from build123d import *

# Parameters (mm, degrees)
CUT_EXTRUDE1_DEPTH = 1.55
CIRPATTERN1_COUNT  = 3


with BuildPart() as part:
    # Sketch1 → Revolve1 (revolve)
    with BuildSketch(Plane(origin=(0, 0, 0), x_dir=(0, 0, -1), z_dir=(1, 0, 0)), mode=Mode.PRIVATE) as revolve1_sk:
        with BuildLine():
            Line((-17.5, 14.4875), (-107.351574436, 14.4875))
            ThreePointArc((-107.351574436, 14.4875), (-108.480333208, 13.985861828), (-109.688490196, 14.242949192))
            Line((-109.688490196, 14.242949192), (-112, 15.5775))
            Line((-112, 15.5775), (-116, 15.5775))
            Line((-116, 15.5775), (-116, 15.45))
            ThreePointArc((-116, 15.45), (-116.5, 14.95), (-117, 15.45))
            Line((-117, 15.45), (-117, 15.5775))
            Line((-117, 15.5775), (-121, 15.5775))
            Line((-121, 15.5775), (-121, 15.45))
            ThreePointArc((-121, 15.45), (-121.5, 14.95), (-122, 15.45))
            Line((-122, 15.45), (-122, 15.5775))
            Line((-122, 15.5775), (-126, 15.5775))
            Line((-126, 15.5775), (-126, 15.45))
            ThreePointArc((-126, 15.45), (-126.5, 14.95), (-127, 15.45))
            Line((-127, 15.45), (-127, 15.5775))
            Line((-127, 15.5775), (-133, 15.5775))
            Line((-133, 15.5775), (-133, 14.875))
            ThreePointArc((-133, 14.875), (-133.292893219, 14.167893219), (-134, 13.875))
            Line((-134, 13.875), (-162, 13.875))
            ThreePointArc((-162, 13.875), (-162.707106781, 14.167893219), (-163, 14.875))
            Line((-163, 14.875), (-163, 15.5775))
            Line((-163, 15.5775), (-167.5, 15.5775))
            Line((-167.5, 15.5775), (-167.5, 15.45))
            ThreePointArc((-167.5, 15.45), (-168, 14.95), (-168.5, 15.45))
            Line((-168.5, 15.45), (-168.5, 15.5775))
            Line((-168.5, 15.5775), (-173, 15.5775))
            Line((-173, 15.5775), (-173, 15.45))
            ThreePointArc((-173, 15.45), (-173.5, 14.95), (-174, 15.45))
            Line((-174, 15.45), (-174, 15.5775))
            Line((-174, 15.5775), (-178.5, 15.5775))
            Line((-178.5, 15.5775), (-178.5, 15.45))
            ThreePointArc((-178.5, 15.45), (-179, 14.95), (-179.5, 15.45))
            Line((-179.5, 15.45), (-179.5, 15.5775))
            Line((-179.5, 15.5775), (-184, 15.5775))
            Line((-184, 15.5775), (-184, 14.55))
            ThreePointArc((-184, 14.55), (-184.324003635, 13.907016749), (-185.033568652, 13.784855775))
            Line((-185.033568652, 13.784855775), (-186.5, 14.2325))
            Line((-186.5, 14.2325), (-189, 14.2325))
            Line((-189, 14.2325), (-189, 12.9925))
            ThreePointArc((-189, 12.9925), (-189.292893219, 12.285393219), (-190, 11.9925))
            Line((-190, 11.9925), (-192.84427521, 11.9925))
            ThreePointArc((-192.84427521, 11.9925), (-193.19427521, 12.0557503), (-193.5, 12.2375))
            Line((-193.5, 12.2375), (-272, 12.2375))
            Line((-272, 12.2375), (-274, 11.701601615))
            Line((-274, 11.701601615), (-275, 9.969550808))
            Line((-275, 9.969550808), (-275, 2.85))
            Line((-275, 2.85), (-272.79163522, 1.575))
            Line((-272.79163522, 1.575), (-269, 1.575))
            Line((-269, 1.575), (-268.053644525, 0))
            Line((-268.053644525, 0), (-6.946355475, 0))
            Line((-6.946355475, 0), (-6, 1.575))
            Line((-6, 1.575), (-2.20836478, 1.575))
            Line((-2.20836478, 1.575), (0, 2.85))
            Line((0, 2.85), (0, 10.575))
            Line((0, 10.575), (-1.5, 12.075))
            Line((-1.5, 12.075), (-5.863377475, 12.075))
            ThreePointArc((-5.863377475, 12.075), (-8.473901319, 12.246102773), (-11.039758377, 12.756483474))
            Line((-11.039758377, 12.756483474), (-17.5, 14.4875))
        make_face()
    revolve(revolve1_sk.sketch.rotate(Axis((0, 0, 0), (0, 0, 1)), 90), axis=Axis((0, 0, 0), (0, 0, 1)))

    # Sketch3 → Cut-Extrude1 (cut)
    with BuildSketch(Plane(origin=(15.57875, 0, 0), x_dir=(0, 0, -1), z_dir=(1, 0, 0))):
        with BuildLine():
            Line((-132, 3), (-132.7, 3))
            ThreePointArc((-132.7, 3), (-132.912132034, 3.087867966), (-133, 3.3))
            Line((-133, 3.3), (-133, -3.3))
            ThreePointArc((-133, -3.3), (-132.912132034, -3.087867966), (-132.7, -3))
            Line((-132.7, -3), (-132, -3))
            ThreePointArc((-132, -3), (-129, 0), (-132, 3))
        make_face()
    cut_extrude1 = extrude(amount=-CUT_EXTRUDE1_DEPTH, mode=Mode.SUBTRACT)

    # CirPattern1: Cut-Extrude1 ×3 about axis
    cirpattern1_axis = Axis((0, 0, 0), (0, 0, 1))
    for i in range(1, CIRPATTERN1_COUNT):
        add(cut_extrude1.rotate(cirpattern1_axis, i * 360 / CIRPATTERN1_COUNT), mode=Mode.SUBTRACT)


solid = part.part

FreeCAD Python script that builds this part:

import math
import FreeCAD as App
import Part
import Sketcher

V = App.Vector
Q = App.Units.Quantity

doc = App.newDocument("Part")
body = doc.addObject("PartDesign::Body", "Body")

# Sketch on YZ plane
sketch1 = body.newObject("Sketcher::SketchObject", "Sketch")
sketch1.AttachmentSupport = (doc.getObject("YZ_Plane"), [""])
sketch1.MapMode = "FlatFace"
sketch1.addGeometry(Part.LineSegment(V(14.49, 17.5, 0), V(14.49, 107.35, 0)), False)
sketch1.addGeometry(Part.ArcOfCircle(Part.Circle(V(15.98, 108.69, 0), V(0, 0, 1), 2), math.radians(150), math.radians(222)), False)
sketch1.addGeometry(Part.LineSegment(V(14.24, 109.69, 0), V(15.58, 112, 0)), False)
sketch1.addGeometry(Part.LineSegment(V(15.58, 112, 0), V(15.58, 116, 0)), False)
sketch1.addGeometry(Part.LineSegment(V(15.58, 116, 0), V(15.45, 116, 0)), False)
sketch1.addGeometry(Part.ArcOfCircle(Part.Circle(V(15.45, 116.5, 0), V(0, 0, 1), 0.5), math.radians(90), math.radians(270)), False)
sketch1.addGeometry(Part.LineSegment(V(15.45, 117, 0), V(15.58, 117, 0)), False)
sketch1.addGeometry(Part.LineSegment(V(15.58, 117, 0), V(15.58, 121, 0)), False)
sketch1.addGeometry(Part.LineSegment(V(15.58, 121, 0), V(15.45, 121, 0)), False)
sketch1.addGeometry(Part.ArcOfCircle(Part.Circle(V(15.45, 121.5, 0), V(0, 0, 1), 0.5), math.radians(90), math.radians(270)), False)
sketch1.addGeometry(Part.LineSegment(V(15.45, 122, 0), V(15.58, 122, 0)), False)
sketch1.addGeometry(Part.LineSegment(V(15.58, 122, 0), V(15.58, 126, 0)), False)
sketch1.addGeometry(Part.LineSegment(V(15.58, 126, 0), V(15.45, 126, 0)), False)
sketch1.addGeometry(Part.ArcOfCircle(Part.Circle(V(15.45, 126.5, 0), V(0, 0, 1), 0.5), math.radians(90), math.radians(270)), False)
sketch1.addGeometry(Part.LineSegment(V(15.45, 127, 0), V(15.58, 127, 0)), False)
sketch1.addGeometry(Part.LineSegment(V(15.58, 127, 0), V(15.58, 133, 0)), False)
sketch1.addGeometry(Part.LineSegment(V(15.58, 133, 0), V(14.88, 133, 0)), False)
sketch1.addGeometry(Part.ArcOfCircle(Part.Circle(V(14.88, 134, 0), V(0, 0, 1), 1), math.radians(-180), math.radians(-90)), False)
sketch1.addGeometry(Part.LineSegment(V(13.88, 134, 0), V(13.88, 162, 0)), False)
sketch1.addGeometry(Part.ArcOfCircle(Part.Circle(V(14.88, 162, 0), V(0, 0, 1), 1), math.radians(90), math.radians(180)), False)
sketch1.addGeometry(Part.LineSegment(V(14.88, 163, 0), V(15.58, 163, 0)), False)
sketch1.addGeometry(Part.LineSegment(V(15.58, 163, 0), V(15.58, 167.5, 0)), False)
sketch1.addGeometry(Part.LineSegment(V(15.58, 167.5, 0), V(15.45, 167.5, 0)), False)
sketch1.addGeometry(Part.ArcOfCircle(Part.Circle(V(15.45, 168, 0), V(0, 0, 1), 0.5), math.radians(90), math.radians(270)), False)
sketch1.addGeometry(Part.LineSegment(V(15.45, 168.5, 0), V(15.58, 168.5, 0)), False)
sketch1.addGeometry(Part.LineSegment(V(15.58, 168.5, 0), V(15.58, 173, 0)), False)
sketch1.addGeometry(Part.LineSegment(V(15.58, 173, 0), V(15.45, 173, 0)), False)
sketch1.addGeometry(Part.ArcOfCircle(Part.Circle(V(15.45, 173.5, 0), V(0, 0, 1), 0.5), math.radians(90), math.radians(270)), False)
sketch1.addGeometry(Part.LineSegment(V(15.45, 174, 0), V(15.58, 174, 0)), False)
sketch1.addGeometry(Part.LineSegment(V(15.58, 174, 0), V(15.58, 178.5, 0)), False)
sketch1.addGeometry(Part.LineSegment(V(15.58, 178.5, 0), V(15.45, 178.5, 0)), False)
sketch1.addGeometry(Part.ArcOfCircle(Part.Circle(V(15.45, 179, 0), V(0, 0, 1), 0.5), math.radians(90), math.radians(270)), False)
sketch1.addGeometry(Part.LineSegment(V(15.45, 179.5, 0), V(15.58, 179.5, 0)), False)
sketch1.addGeometry(Part.LineSegment(V(15.58, 179.5, 0), V(15.58, 184, 0)), False)
sketch1.addGeometry(Part.LineSegment(V(15.58, 184, 0), V(14.55, 184, 0)), False)
sketch1.addGeometry(Part.ArcOfCircle(Part.Circle(V(14.55, 184.8, 0), V(0, 0, 1), 0.8), math.radians(163), math.radians(270)), False)
sketch1.addGeometry(Part.LineSegment(V(13.78, 185.03, 0), V(14.23, 186.5, 0)), False)
sketch1.addGeometry(Part.LineSegment(V(14.23, 186.5, 0), V(14.23, 189, 0)), False)
sketch1.addGeometry(Part.LineSegment(V(14.23, 189, 0), V(12.99, 189, 0)), False)
sketch1.addGeometry(Part.ArcOfCircle(Part.Circle(V(12.99, 190, 0), V(0, 0, 1), 1), math.radians(-180), math.radians(-90)), False)
sketch1.addGeometry(Part.LineSegment(V(11.99, 190, 0), V(11.99, 192.84, 0)), False)
sketch1.addGeometry(Part.ArcOfCircle(Part.Circle(V(12.99, 192.84, 0), V(0, 0, 1), 1), math.radians(139), math.radians(180)), False)
sketch1.addGeometry(Part.LineSegment(V(12.24, 193.5, 0), V(12.24, 272, 0)), False)
sketch1.addGeometry(Part.LineSegment(V(12.24, 272, 0), V(11.7, 274, 0)), False)
sketch1.addGeometry(Part.LineSegment(V(11.7, 274, 0), V(9.97, 275, 0)), False)
sketch1.addGeometry(Part.LineSegment(V(9.97, 275, 0), V(2.85, 275, 0)), False)
sketch1.addGeometry(Part.LineSegment(V(2.85, 275, 0), V(1.57, 272.79, 0)), False)
sketch1.addGeometry(Part.LineSegment(V(1.57, 272.79, 0), V(1.57, 269, 0)), False)
sketch1.addGeometry(Part.LineSegment(V(1.57, 269, 0), V(0, 268.05, 0)), False)
sketch1.addGeometry(Part.LineSegment(V(0, 268.05, 0), V(0, 6.95, 0)), False)
sketch1.addGeometry(Part.LineSegment(V(0, 6.95, 0), V(1.57, 6, 0)), False)
sketch1.addGeometry(Part.LineSegment(V(1.57, 6, 0), V(1.57, 2.21, 0)), False)
sketch1.addGeometry(Part.LineSegment(V(1.57, 2.21, 0), V(2.85, 0, 0)), False)
sketch1.addGeometry(Part.LineSegment(V(2.85, 0, 0), V(10.57, 0, 0)), False)
sketch1.addGeometry(Part.LineSegment(V(10.57, 0, 0), V(12.07, 1.5, 0)), False)
sketch1.addGeometry(Part.LineSegment(V(12.07, 1.5, 0), V(12.07, 5.86, 0)), False)
sketch1.addGeometry(Part.ArcOfCircle(Part.Circle(V(32.08, 5.86, 0), V(0, 0, 1), 20), math.radians(165), math.radians(180)), False)
sketch1.addGeometry(Part.LineSegment(V(12.76, 11.04, 0), V(14.49, 17.5, 0)), False)
sketch1.addConstraint(Sketcher.Constraint("Coincident", 0, 2, 1, 2))
sketch1.addConstraint(Sketcher.Constraint("Tangent", 1, 1, 2, 1))
sketch1.addConstraint(Sketcher.Constraint("Coincident", 2, 2, 3, 1))
sketch1.addConstraint(Sketcher.Constraint("Coincident", 3, 2, 4, 1))
sketch1.addConstraint(Sketcher.Constraint("Tangent", 4, 2, 5, 2))
sketch1.addConstraint(Sketcher.Constraint("Tangent", 5, 1, 6, 1))
sketch1.addConstraint(Sketcher.Constraint("Coincident", 6, 2, 7, 1))
sketch1.addConstraint(Sketcher.Constraint("Coincident", 7, 2, 8, 1))
sketch1.addConstraint(Sketcher.Constraint("Tangent", 8, 2, 9, 2))
sketch1.addConstraint(Sketcher.Constraint("Tangent", 9, 1, 10, 1))
sketch1.addConstraint(Sketcher.Constraint("Coincident", 10, 2, 11, 1))
sketch1.addConstraint(Sketcher.Constraint("Coincident", 11, 2, 12, 1))
sketch1.addConstraint(Sketcher.Constraint("Tangent", 12, 2, 13, 2))
sketch1.addConstraint(Sketcher.Constraint("Tangent", 13, 1, 14, 1))
sketch1.addConstraint(Sketcher.Constraint("Coincident", 14, 2, 15, 1))
sketch1.addConstraint(Sketcher.Constraint("Coincident", 15, 2, 16, 1))
sketch1.addConstraint(Sketcher.Constraint("Tangent", 16, 2, 17, 2))
sketch1.addConstraint(Sketcher.Constraint("Tangent", 17, 1, 18, 1))
sketch1.addConstraint(Sketcher.Constraint("Tangent", 18, 2, 19, 2))
sketch1.addConstraint(Sketcher.Constraint("Tangent", 19, 1, 20, 1))
sketch1.addConstraint(Sketcher.Constraint("Coincident", 20, 2, 21, 1))
sketch1.addConstraint(Sketcher.Constraint("Coincident", 21, 2, 22, 1))
sketch1.addConstraint(Sketcher.Constraint("Tangent", 22, 2, 23, 2))
sketch1.addConstraint(Sketcher.Constraint("Tangent", 23, 1, 24, 1))
sketch1.addConstraint(Sketcher.Constraint("Coincident", 24, 2, 25, 1))
sketch1.addConstraint(Sketcher.Constraint("Coincident", 25, 2, 26, 1))
sketch1.addConstraint(Sketcher.Constraint("Tangent", 26, 2, 27, 2))
sketch1.addConstraint(Sketcher.Constraint("Tangent", 27, 1, 28, 1))
sketch1.addConstraint(Sketcher.Constraint("Coincident", 28, 2, 29, 1))
sketch1.addConstraint(Sketcher.Constraint("Coincident", 29, 2, 30, 1))
sketch1.addConstraint(Sketcher.Constraint("Tangent", 30, 2, 31, 2))
sketch1.addConstraint(Sketcher.Constraint("Tangent", 31, 1, 32, 1))
sketch1.addConstraint(Sketcher.Constraint("Coincident", 32, 2, 33, 1))
sketch1.addConstraint(Sketcher.Constraint("Coincident", 33, 2, 34, 1))
sketch1.addConstraint(Sketcher.Constraint("Tangent", 34, 2, 35, 2))
sketch1.addConstraint(Sketcher.Constraint("Tangent", 35, 1, 36, 1))
sketch1.addConstraint(Sketcher.Constraint("Coincident", 36, 2, 37, 1))
sketch1.addConstraint(Sketcher.Constraint("Coincident", 37, 2, 38, 1))
sketch1.addConstraint(Sketcher.Constraint("Tangent", 38, 2, 39, 2))
sketch1.addConstraint(Sketcher.Constraint("Tangent", 39, 1, 40, 1))
sketch1.addConstraint(Sketcher.Constraint("Tangent", 40, 2, 41, 2))
sketch1.addConstraint(Sketcher.Constraint("Coincident", 41, 1, 42, 1))
sketch1.addConstraint(Sketcher.Constraint("Coincident", 42, 2, 43, 1))
sketch1.addConstraint(Sketcher.Constraint("Coincident", 43, 2, 44, 1))
sketch1.addConstraint(Sketcher.Constraint("Coincident", 44, 2, 45, 1))
sketch1.addConstraint(Sketcher.Constraint("Coincident", 45, 2, 46, 1))
sketch1.addConstraint(Sketcher.Constraint("Coincident", 46, 2, 47, 1))
sketch1.addConstraint(Sketcher.Constraint("Coincident", 47, 2, 48, 1))
sketch1.addConstraint(Sketcher.Constraint("Coincident", 48, 2, 49, 1))
sketch1.addConstraint(Sketcher.Constraint("Coincident", 49, 2, 50, 1))
sketch1.addConstraint(Sketcher.Constraint("Coincident", 50, 2, 51, 1))
sketch1.addConstraint(Sketcher.Constraint("Coincident", 51, 2, 52, 1))
sketch1.addConstraint(Sketcher.Constraint("Coincident", 52, 2, 53, 1))
sketch1.addConstraint(Sketcher.Constraint("Coincident", 53, 2, 54, 1))
sketch1.addConstraint(Sketcher.Constraint("Coincident", 54, 2, 55, 1))
sketch1.addConstraint(Sketcher.Constraint("Tangent", 55, 2, 56, 2))
sketch1.addConstraint(Sketcher.Constraint("Tangent", 56, 1, 57, 1))
sketch1.addConstraint(Sketcher.Constraint("Coincident", 57, 2, 0, 1))
sketch1.addConstraint(Sketcher.Constraint("Vertical", 0))
sketch1.addConstraint(Sketcher.Constraint("Vertical", 3))
sketch1.addConstraint(Sketcher.Constraint("Horizontal", 4))
sketch1.addConstraint(Sketcher.Constraint("Horizontal", 6))
sketch1.addConstraint(Sketcher.Constraint("Vertical", 7))
sketch1.addConstraint(Sketcher.Constraint("Horizontal", 8))
sketch1.addConstraint(Sketcher.Constraint("Horizontal", 10))
sketch1.addConstraint(Sketcher.Constraint("Vertical", 11))
sketch1.addConstraint(Sketcher.Constraint("Horizontal", 12))
sketch1.addConstraint(Sketcher.Constraint("Horizontal", 14))
sketch1.addConstraint(Sketcher.Constraint("Vertical", 15))
sketch1.addConstraint(Sketcher.Constraint("Horizontal", 16))
sketch1.addConstraint(Sketcher.Constraint("Vertical", 18))
sketch1.addConstraint(Sketcher.Constraint("Horizontal", 20))
sketch1.addConstraint(Sketcher.Constraint("Vertical", 21))
sketch1.addConstraint(Sketcher.Constraint("Horizontal", 22))
sketch1.addConstraint(Sketcher.Constraint("Horizontal", 24))
sketch1.addConstraint(Sketcher.Constraint("Vertical", 25))
sketch1.addConstraint(Sketcher.Constraint("Horizontal", 26))
sketch1.addConstraint(Sketcher.Constraint("Horizontal", 28))
sketch1.addConstraint(Sketcher.Constraint("Vertical", 29))
sketch1.addConstraint(Sketcher.Constraint("Horizontal", 30))
sketch1.addConstraint(Sketcher.Constraint("Horizontal", 32))
sketch1.addConstraint(Sketcher.Constraint("Vertical", 33))
sketch1.addConstraint(Sketcher.Constraint("Horizontal", 34))
sketch1.addConstraint(Sketcher.Constraint("Vertical", 37))
sketch1.addConstraint(Sketcher.Constraint("Horizontal", 38))
sketch1.addConstraint(Sketcher.Constraint("Vertical", 40))
sketch1.addConstraint(Sketcher.Constraint("Vertical", 42))
sketch1.addConstraint(Sketcher.Constraint("Horizontal", 45))
sketch1.addConstraint(Sketcher.Constraint("Vertical", 47))
sketch1.addConstraint(Sketcher.Constraint("Vertical", 49))
sketch1.addConstraint(Sketcher.Constraint("Vertical", 51))
sketch1.addConstraint(Sketcher.Constraint("Horizontal", 53))
sketch1.addConstraint(Sketcher.Constraint("Vertical", 55))
sketch1.addConstraint(Sketcher.Constraint("Equal", 5, 9))
sketch1.addConstraint(Sketcher.Constraint("Equal", 9, 13))
sketch1.addConstraint(Sketcher.Constraint("Equal", 17, 19))
sketch1.addConstraint(Sketcher.Constraint("Equal", 13, 23))
sketch1.addConstraint(Sketcher.Constraint("Equal", 23, 27))
sketch1.addConstraint(Sketcher.Constraint("Equal", 27, 31))
sketch1.addConstraint(Sketcher.Constraint("Equal", 19, 39))
sketch1.addConstraint(Sketcher.Constraint("Equal", 39, 41))
sketch1.addConstraint(Sketcher.Constraint("PointOnObject", 48, 2, -2))
sketch1.addConstraint(Sketcher.Constraint("PointOnObject", 52, 2, -1))
sketch1.addConstraint(Sketcher.Constraint("Perpendicular", 2, 44))
sketch1.addConstraint(Sketcher.Constraint("Perpendicular", 44, 46))
sketch1.addConstraint(Sketcher.Constraint("Vertical", 5, 3, 9, 3))
sketch1.addConstraint(Sketcher.Constraint("Vertical", 9, 3, 13, 3))
sketch1.addConstraint(Sketcher.Constraint("Vertical", 13, 3, 23, 3))
sketch1.addConstraint(Sketcher.Constraint("Vertical", 23, 3, 27, 3))
sketch1.addConstraint(Sketcher.Constraint("Vertical", 27, 3, 31, 3))
sketch1.addConstraint(Sketcher.Constraint("Vertical", 3, 2, 6, 2))
sketch1.addConstraint(Sketcher.Constraint("Vertical", 7, 2, 10, 2))
sketch1.addConstraint(Sketcher.Constraint("Vertical", 11, 2, 14, 2))
sketch1.addConstraint(Sketcher.Constraint("Vertical", 15, 2, 20, 2))
sketch1.addConstraint(Sketcher.Constraint("Vertical", 21, 2, 24, 2))
sketch1.addConstraint(Sketcher.Constraint("Vertical", 25, 2, 28, 2))
sketch1.addConstraint(Sketcher.Constraint("Vertical", 29, 2, 32, 2))
sketch1.addConstraint(Sketcher.Constraint("Vertical", 47, 2, 50, 2))
sketch1.addConstraint(Sketcher.Constraint("Vertical", 45, 2, 52, 2))
sketch1.addConstraint(Sketcher.Constraint("Equal", 3, 7))
sketch1.addConstraint(Sketcher.Constraint("Equal", 7, 11))
sketch1.addConstraint(Sketcher.Constraint("Equal", 21, 25))
sketch1.addConstraint(Sketcher.Constraint("Equal", 25, 29))
sketch1.addConstraint(Sketcher.Constraint("Equal", 29, 33))
sketch1.addConstraint(Sketcher.Constraint("Equal", 47, 51))
sketch1.addConstraint(Sketcher.Constraint("Equal", 48, 50))
sketch1.addConstraint(Sketcher.Constraint("Equal", 46, 52))
sketch1.addConstraint(Sketcher.Constraint("Radius", 1, Q("2 mm")))
sketch1.addConstraint(Sketcher.Constraint("Radius", 17, Q("1 mm")))
sketch1.addConstraint(Sketcher.Constraint("Radius", 56, Q("20 mm")))
sketch1.addConstraint(Sketcher.Constraint("Radius", 5, Q("0.5 mm")))
sketch1.addConstraint(Sketcher.Constraint("Radius", 35, Q("0.8 mm")))
sketch1.addConstraint(Sketcher.Constraint("DistanceY", 3, 1, 3, 2, Q("4 mm")))
sketch1.addConstraint(Sketcher.Constraint("DistanceY", 15, 1, 15, 2, Q("6 mm")))
sketch1.addConstraint(Sketcher.Constraint("DistanceY", 18, 1, 18, 2, Q("28 mm")))
sketch1.addConstraint(Sketcher.Constraint("Angle", 2, Q("60 deg")))
sketch1.addConstraint(Sketcher.Constraint("Angle", 43, Q("105 deg")))
sketch1.addConstraint(Sketcher.Constraint("Angle", 48, Q("-149 deg")))
sketch1.addConstraint(Sketcher.Constraint("Angle", 54, Q("45 deg")))
sketch1.addConstraint(Sketcher.Constraint("Angle", 57, Q("75 deg")))
sketch1.addConstraint(Sketcher.Constraint("Distance", 44, Q("2 mm")))
sketch1.addConstraint(Sketcher.Constraint("DistanceY", 21, 1, 21, 2, Q("4.5 mm")))
sketch1.addConstraint(Sketcher.Constraint("DistanceY", 37, 1, 37, 2, Q("2.5 mm")))
sketch1.addConstraint(Sketcher.Constraint("DistanceY", 42, 1, 42, 2, Q("78.5 mm")))
sketch1.addConstraint(Sketcher.Constraint("DistanceY", -1, 1, 17, 3, Q("134 mm")))
sketch1.addConstraint(Sketcher.Constraint("DistanceY", -1, 1, 39, 3, Q("190 mm")))
sketch1.addConstraint(Sketcher.Constraint("DistanceY", -1, 1, 42, 2, Q("272 mm")))
sketch1.addConstraint(Sketcher.Constraint("DistanceY", -1, 1, 43, 2, Q("274 mm")))
sketch1.addConstraint(Sketcher.Constraint("DistanceY", -1, 1, 47, 2, Q("269 mm")))
sketch1.addConstraint(Sketcher.Constraint("DistanceX", 38, 2, 38, 1, Q("1.24 mm")))
sketch1.addConstraint(Sketcher.Constraint("DistanceY", -1, 1, 54, 2, Q("1.5 mm")))
sketch1.addConstraint(Sketcher.Constraint("DistanceY", -1, 1, 57, 2, Q("17.5 mm")))
sketch1.addConstraint(Sketcher.Constraint("Distance", 46, Q("2.55 mm")))
sketch1.addConstraint(Sketcher.Constraint("DistanceX", 53, 1, 53, 2, Q("7.725 mm")))
sketch1.addConstraint(Sketcher.Constraint("DistanceX", -1, 1, 5, 3, Q("15.45 mm")))
sketch1.addConstraint(Sketcher.Constraint("DistanceX", -1, 1, 35, 3, Q("14.55 mm")))
sketch1.addConstraint(Sketcher.Constraint("DistanceX", -1, 1, 45, 2, Q("2.85 mm")))
sketch1.addConstraint(Sketcher.Constraint("DistanceX", 4, 2, 4, 1, Q("0.1275 mm")))
sketch1.addConstraint(Sketcher.Constraint("DistanceX", 16, 2, 16, 1, Q("0.7025 mm")))
sketch1.addConstraint(Sketcher.Constraint("DistanceX", -1, 1, 1, 3, Q("15.975 mm")))
sketch1.addConstraint(Sketcher.Constraint("DistanceX", 45, 2, 45, 1, Q("7.119551 mm")))
sketch1.addConstraint(Sketcher.Constraint("DistanceX", -1, 1, 39, 3, Q("12.9925 mm")))
sketch1.addConstraint(Sketcher.Constraint("DistanceX", -1, 1, 0, 2, Q("14.4875 mm")))
revolution = body.newObject("PartDesign::Revolution", "Revolution")
revolution.Profile = sketch1
revolution.ReferenceAxis = (sketch1, ["V_Axis"])
revolution.Angle = 360

# Sketch on YZ plane
sketch2 = body.newObject("Sketcher::SketchObject", "Sketch001")
sketch2.AttachmentSupport = (doc.getObject("YZ_Plane"), [""])
sketch2.MapMode = "FlatFace"
sketch2.AttachmentOffset = App.Placement(V(0, 0, 15.57875), App.Rotation())
sketch2.addGeometry(Part.LineSegment(V(3, 132, 0), V(3, 132.7, 0)), False)
sketch2.addGeometry(Part.ArcOfCircle(Part.Circle(V(3.3, 132.7, 0), V(0, 0, 1), 0.3), math.radians(90), math.radians(180)), False)
sketch2.addGeometry(Part.LineSegment(V(3.3, 133, 0), V(-3.3, 133, 0)), False)
sketch2.addGeometry(Part.ArcOfCircle(Part.Circle(V(-3.3, 132.7, 0), V(0, 0, 1), 0.3), math.radians(0), math.radians(90)), False)
sketch2.addGeometry(Part.LineSegment(V(-3, 132.7, 0), V(-3, 132, 0)), False)
sketch2.addGeometry(Part.ArcOfCircle(Part.Circle(V(0, 132, 0), V(0, 0, 1), 3), math.radians(180), math.radians(360)), False)
sketch2.addConstraint(Sketcher.Constraint("Tangent", 0, 2, 1, 2))
sketch2.addConstraint(Sketcher.Constraint("Tangent", 1, 1, 2, 1))
sketch2.addConstraint(Sketcher.Constraint("Tangent", 2, 2, 3, 2))
sketch2.addConstraint(Sketcher.Constraint("Tangent", 3, 1, 4, 1))
sketch2.addConstraint(Sketcher.Constraint("Tangent", 4, 2, 5, 1))
sketch2.addConstraint(Sketcher.Constraint("Tangent", 5, 2, 0, 1))
sketch2.addConstraint(Sketcher.Constraint("Vertical", 0))
sketch2.addConstraint(Sketcher.Constraint("Horizontal", 2))
sketch2.addConstraint(Sketcher.Constraint("Vertical", 4))
sketch2.addConstraint(Sketcher.Constraint("Equal", 1, 3))
sketch2.addConstraint(Sketcher.Constraint("PointOnObject", 5, 3, -2))
sketch2.addConstraint(Sketcher.Constraint("Radius", 5, Q("3 mm")))
sketch2.addConstraint(Sketcher.Constraint("Radius", 1, Q("0.3 mm")))
sketch2.addConstraint(Sketcher.Constraint("DistanceY", 0, 1, 0, 2, Q("0.7 mm")))
sketch2.addConstraint(Sketcher.Constraint("DistanceY", -1, 1, 5, 3, Q("132 mm")))
pocket1 = body.newObject("PartDesign::Pocket", "Pocket")
pocket1.Profile = sketch2
pocket1.Length = 1.55
doc.recompute()

polarpattern = body.newObject("PartDesign::PolarPattern", "PolarPattern")
polarpattern.Originals = [pocket1]
polarpattern.Axis = (doc.getObject("Z_Axis"), [""])
polarpattern.Angle = 360
polarpattern.Occurrences = 3
body.Tip = polarpattern

doc.recompute()
